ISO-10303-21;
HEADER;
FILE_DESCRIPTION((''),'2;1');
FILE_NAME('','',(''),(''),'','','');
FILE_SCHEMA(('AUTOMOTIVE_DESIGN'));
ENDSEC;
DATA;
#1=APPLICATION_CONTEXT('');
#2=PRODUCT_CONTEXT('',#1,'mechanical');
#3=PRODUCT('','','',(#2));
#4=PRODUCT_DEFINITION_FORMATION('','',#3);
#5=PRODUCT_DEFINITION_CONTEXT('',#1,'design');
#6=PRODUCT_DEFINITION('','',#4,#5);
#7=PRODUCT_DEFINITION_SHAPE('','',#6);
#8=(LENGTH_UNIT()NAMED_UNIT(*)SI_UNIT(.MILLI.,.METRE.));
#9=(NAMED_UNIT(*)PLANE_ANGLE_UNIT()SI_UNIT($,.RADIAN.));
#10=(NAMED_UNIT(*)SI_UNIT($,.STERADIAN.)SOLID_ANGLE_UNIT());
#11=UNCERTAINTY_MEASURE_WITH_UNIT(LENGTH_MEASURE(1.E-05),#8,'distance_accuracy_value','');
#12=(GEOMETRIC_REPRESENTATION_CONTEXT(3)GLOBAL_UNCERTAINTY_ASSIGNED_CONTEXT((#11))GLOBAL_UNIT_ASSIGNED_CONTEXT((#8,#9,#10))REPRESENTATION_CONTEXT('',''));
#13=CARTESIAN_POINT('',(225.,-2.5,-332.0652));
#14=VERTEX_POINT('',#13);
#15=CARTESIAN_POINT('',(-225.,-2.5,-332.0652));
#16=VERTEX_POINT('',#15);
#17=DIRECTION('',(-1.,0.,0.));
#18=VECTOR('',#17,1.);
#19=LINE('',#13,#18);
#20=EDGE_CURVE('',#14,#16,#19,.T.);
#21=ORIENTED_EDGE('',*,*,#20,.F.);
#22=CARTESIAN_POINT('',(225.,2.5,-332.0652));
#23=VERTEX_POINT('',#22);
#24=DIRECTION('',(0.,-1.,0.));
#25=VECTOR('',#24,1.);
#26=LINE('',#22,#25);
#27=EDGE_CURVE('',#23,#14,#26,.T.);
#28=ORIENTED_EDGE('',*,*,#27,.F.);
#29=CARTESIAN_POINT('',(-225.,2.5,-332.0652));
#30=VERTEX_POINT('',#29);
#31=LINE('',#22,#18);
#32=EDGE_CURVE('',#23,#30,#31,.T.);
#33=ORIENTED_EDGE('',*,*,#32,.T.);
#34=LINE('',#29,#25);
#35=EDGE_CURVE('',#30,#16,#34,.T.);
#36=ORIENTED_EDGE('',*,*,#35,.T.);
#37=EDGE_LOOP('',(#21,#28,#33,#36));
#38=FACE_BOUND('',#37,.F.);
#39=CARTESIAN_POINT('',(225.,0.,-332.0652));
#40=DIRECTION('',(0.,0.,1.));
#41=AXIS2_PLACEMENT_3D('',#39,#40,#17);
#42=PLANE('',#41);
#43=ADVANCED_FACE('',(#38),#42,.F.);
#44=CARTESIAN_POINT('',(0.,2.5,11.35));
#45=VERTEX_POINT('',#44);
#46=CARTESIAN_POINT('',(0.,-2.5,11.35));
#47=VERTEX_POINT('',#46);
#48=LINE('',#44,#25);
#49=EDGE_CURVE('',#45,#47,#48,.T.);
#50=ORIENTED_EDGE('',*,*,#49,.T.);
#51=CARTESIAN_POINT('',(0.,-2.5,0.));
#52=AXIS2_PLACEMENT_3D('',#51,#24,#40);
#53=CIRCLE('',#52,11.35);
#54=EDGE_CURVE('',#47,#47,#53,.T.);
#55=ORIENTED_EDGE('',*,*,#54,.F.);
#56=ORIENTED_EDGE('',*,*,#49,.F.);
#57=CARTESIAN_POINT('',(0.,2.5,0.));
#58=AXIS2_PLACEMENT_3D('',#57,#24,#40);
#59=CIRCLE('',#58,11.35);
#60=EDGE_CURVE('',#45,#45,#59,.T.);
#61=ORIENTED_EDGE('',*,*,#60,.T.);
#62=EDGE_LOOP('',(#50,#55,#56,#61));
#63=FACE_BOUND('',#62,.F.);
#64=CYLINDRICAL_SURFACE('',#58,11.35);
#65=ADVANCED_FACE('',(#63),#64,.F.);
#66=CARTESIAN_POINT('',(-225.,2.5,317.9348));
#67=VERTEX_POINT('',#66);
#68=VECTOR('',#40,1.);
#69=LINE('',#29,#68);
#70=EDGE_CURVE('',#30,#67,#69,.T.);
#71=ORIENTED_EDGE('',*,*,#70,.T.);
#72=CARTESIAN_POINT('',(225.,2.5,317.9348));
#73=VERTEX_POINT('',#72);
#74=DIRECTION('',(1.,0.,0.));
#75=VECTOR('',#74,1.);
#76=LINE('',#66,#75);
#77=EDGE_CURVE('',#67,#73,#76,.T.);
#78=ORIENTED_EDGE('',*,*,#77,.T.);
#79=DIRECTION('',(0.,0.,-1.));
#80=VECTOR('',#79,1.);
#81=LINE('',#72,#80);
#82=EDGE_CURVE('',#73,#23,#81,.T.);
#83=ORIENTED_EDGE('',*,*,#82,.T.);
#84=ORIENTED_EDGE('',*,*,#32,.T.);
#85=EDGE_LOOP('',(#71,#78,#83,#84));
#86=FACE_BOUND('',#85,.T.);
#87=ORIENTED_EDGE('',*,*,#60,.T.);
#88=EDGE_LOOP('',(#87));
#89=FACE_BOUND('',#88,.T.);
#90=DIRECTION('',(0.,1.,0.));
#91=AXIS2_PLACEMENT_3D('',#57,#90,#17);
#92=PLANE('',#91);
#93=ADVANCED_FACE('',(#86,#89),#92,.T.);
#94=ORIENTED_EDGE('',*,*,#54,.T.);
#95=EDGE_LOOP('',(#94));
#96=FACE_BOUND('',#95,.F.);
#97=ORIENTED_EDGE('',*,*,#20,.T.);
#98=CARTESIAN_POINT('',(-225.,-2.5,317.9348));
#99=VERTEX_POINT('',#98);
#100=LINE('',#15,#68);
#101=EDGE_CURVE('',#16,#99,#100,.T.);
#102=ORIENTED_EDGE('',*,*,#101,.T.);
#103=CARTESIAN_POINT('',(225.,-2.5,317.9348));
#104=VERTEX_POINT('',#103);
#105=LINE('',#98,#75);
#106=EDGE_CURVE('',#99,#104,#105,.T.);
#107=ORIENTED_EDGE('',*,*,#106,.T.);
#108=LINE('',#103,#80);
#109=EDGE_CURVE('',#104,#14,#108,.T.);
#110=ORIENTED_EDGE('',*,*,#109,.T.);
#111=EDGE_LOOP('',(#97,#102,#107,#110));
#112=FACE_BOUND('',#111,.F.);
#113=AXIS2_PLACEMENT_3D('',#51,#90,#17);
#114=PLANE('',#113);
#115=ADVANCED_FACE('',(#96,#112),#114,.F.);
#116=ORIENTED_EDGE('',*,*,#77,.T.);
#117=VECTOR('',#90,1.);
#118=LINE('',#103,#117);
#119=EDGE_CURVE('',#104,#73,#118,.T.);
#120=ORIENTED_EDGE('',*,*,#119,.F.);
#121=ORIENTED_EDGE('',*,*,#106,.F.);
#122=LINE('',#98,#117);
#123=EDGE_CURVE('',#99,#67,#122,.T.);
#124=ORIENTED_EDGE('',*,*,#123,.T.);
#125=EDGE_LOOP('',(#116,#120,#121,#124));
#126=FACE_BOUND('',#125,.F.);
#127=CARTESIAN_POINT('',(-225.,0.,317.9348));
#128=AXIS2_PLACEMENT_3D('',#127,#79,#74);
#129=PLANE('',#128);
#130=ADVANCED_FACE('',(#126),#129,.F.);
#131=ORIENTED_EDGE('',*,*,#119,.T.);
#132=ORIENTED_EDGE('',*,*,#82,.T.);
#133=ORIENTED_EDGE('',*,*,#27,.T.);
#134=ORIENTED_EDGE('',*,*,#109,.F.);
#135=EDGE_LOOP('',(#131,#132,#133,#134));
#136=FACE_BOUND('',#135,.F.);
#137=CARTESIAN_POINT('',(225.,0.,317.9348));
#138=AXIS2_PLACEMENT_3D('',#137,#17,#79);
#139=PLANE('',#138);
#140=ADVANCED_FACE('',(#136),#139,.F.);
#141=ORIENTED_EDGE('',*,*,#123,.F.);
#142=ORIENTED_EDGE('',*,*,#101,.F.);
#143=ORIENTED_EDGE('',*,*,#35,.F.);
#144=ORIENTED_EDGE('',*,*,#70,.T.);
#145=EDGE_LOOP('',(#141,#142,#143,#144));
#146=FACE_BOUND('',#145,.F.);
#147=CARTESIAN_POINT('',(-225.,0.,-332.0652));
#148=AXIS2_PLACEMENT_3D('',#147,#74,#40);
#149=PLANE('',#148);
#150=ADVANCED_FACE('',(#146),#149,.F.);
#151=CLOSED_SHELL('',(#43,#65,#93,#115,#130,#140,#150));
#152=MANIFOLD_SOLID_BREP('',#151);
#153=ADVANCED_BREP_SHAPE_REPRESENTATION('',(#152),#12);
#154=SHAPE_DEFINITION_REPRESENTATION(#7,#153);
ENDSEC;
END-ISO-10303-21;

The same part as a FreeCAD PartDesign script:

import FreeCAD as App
import Part
import Sketcher
from FreeCAD import Vector
Q = App.Units.Quantity

doc = App.newDocument("Part")
body = doc.addObject("PartDesign::Body", "Body")

# Sketch on XZ plane
sketch1 = body.newObject("Sketcher::SketchObject", "Sketch")
sketch1.AttachmentSupport = (doc.getObject("XZ_Plane"), [""])
sketch1.MapMode = "FlatFace"
sketch1.addGeometry(Part.LineSegment(Vector(-225, -332, 0), Vector(-225, 318, 0)), False)
sketch1.addGeometry(Part.LineSegment(Vector(-225, 318, 0), Vector(225, 318, 0)), False)
sketch1.addGeometry(Part.LineSegment(Vector(225, 318, 0), Vector(225, -332, 0)), False)
sketch1.addGeometry(Part.LineSegment(Vector(225, -332, 0), Vector(-225, -332, 0)), False)
sketch1.addConstraint(Sketcher.Constraint("Coincident", 0, 2, 1, 1))
sketch1.addConstraint(Sketcher.Constraint("Coincident", 1, 2, 2, 1))
sketch1.addConstraint(Sketcher.Constraint("Coincident", 2, 2, 3, 1))
sketch1.addConstraint(Sketcher.Constraint("Coincident", 3, 2, 0, 1))
sketch1.addConstraint(Sketcher.Constraint("Vertical", 0))
sketch1.addConstraint(Sketcher.Constraint("Horizontal", 1))
sketch1.addConstraint(Sketcher.Constraint("Vertical", 2))
sketch1.addConstraint(Sketcher.Constraint("Horizontal", 3))
sketch1.addConstraint(Sketcher.Constraint("DistanceX", 1, 1, 1, 2, Q("450 mm")))
sketch1.addConstraint(Sketcher.Constraint("DistanceY", 0, 1, 0, 2, Q("650 mm")))
sketch1.addConstraint(Sketcher.Constraint("DistanceX", 0, 2, -1, 1, Q("225 mm")))
sketch1.addConstraint(Sketcher.Constraint("DistanceY", -1, 1, 0, 2, Q("317.9348 mm")))
pad1 = body.newObject("PartDesign::Pad", "Pad")
pad1.Profile = sketch1
pad1.Length = 5
pad1.Midplane = True

# Sketch on XZ plane
sketch2 = body.newObject("Sketcher::SketchObject", "Sketch001")
sketch2.AttachmentSupport = (doc.getObject("XZ_Plane"), [""])
sketch2.MapMode = "FlatFace"
sketch2.AttachmentOffset = App.Placement(Vector(0, 0, -2.5), App.Rotation())
sketch2.addGeometry(Part.Circle(Vector(0, 0, 0), Vector(0, 0, 1), 11), False)
sketch2.addConstraint(Sketcher.Constraint("Coincident", 0, 3, -1, 1))
sketch2.addConstraint(Sketcher.Constraint("Diameter", 0, Q("22.7 mm")))
doc.recompute()
hole = body.newObject("PartDesign::Hole", "Hole")
hole.Profile = sketch2
hole.ThreadType = "None"
hole.Diameter = 22.7
hole.DepthType = "ThroughAll"
hole.Reversed = True

doc.recompute()
